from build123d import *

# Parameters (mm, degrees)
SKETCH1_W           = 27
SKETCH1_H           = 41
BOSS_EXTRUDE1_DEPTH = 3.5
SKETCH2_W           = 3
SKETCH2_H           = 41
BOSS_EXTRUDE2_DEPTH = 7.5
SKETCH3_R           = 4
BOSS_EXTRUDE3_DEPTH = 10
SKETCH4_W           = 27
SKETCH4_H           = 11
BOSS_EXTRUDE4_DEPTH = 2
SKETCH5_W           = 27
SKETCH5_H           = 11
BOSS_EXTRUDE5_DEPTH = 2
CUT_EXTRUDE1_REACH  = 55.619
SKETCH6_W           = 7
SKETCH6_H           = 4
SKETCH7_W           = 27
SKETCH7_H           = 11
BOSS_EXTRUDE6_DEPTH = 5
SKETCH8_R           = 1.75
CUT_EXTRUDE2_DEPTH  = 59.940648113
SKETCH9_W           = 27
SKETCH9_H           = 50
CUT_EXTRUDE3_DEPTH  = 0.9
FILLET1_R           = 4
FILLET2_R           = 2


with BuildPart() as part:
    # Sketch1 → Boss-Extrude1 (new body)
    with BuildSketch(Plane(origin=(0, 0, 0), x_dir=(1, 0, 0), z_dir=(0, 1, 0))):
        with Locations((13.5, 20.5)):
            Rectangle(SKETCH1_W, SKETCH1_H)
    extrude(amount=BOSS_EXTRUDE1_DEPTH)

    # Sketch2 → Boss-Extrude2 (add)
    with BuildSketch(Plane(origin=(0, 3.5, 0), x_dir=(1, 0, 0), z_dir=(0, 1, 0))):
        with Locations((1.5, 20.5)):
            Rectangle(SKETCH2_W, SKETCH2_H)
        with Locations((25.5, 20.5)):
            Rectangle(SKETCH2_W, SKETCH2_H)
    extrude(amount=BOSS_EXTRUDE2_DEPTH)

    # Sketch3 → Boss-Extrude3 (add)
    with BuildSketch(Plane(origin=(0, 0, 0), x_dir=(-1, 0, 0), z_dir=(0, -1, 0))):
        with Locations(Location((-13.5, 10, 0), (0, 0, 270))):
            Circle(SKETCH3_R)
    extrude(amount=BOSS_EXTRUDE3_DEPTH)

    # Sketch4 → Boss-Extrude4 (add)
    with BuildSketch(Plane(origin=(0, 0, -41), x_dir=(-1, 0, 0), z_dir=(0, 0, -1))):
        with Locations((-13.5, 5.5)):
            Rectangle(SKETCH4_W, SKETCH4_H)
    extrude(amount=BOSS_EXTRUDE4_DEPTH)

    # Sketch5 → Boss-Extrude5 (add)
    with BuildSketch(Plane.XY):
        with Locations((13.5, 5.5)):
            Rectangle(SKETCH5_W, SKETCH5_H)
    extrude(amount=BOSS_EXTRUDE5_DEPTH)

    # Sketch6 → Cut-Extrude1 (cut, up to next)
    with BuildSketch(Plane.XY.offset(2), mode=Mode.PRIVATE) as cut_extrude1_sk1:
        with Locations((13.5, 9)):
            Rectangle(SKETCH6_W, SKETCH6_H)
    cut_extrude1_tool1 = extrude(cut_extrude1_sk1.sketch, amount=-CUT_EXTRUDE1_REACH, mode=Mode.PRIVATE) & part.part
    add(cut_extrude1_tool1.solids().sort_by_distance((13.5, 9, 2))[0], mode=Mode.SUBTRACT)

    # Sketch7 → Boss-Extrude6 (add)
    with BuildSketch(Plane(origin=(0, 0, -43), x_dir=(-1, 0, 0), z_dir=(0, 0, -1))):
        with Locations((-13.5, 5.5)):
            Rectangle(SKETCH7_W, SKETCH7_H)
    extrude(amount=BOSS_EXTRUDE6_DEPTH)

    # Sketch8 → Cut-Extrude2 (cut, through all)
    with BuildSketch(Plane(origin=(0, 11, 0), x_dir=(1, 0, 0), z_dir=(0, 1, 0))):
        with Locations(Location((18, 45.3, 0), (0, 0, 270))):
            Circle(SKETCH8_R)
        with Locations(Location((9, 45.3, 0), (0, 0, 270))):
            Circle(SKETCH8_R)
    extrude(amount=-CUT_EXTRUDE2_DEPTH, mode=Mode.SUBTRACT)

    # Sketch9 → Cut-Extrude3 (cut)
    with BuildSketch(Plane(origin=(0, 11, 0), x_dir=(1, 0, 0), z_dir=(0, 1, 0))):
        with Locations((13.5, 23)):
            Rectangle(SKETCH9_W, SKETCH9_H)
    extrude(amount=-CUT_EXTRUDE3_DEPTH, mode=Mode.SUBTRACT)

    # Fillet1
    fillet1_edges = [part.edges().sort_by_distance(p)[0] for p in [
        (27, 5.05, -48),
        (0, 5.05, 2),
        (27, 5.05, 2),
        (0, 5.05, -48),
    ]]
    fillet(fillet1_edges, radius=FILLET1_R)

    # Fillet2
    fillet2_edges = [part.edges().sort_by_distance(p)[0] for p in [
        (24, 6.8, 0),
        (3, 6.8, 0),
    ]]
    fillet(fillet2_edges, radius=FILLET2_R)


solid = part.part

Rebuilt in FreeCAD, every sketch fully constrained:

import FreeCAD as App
import Part
import Sketcher

V = App.Vector


def edges_at(feature, points):
    """Names of the edges that pass closest to the given points."""
    edges = feature.Shape.Edges
    near = lambda p: min(range(len(edges)), key=lambda i: edges[i].distToShape(Part.Vertex(*p))[0])
    return sorted({f"Edge{near(p) + 1}" for p in points})


def add_polygon(sketch, points):
    """Adds a closed chain of lines whose ends are joined by coincident constraints."""
    first, n = sketch.GeometryCount, len(points)
    for a, b in zip(points, points[1:] + points[:1]):
        sketch.addGeometry(Part.LineSegment(App.Vector(*a, 0), App.Vector(*b, 0)), False)
    for i in range(n):
        sketch.addConstraint(Sketcher.Constraint("Coincident", first + i, 2, first + (i + 1) % n, 1))

doc = App.newDocument("Part")
body = doc.addObject("PartDesign::Body", "Body")

sketch1 = body.newObject("Sketcher::SketchObject", "Sketch")
sketch1.AttachmentSupport = (doc.getObject("XZ_Plane"), [""])
sketch1.MapMode = "FlatFace"
add_polygon(sketch1, [(0, -41), (0, 0), (27, 0), (27, -41)])
sketch1.addConstraint([
    Sketcher.Constraint("Vertical", 0),
    Sketcher.Constraint("Horizontal", 1),
    Sketcher.Constraint("Vertical", 2),
    Sketcher.Constraint("Horizontal", 3),
    Sketcher.Constraint("Coincident", 0, 2, -1, 1),
    Sketcher.Constraint("DistanceX", 1, 1, 1, 2, 27.0),
    Sketcher.Constraint("DistanceY", 0, 1, 0, 2, 41.0),
])
pad1 = body.newObject("PartDesign::Pad", "Pad")
pad1.Profile = sketch1
pad1.Length = 3.5
pad1.Reversed = True

sketch2 = body.newObject("Sketcher::SketchObject", "Sketch001")
sketch2.AttachmentSupport = (doc.getObject("XZ_Plane"), [""])
sketch2.MapMode = "FlatFace"
sketch2.AttachmentOffset = App.Placement(V(0, 0, -3.5), App.Rotation())
add_polygon(sketch2, [(0, -41), (0, 0), (3, 0), (3, -41)])
add_polygon(sketch2, [(24, -41), (24, 0), (27, 0), (27, -41)])
sketch2.addConstraint([
    Sketcher.Constraint("Vertical", 0),
    Sketcher.Constraint("Horizontal", 1),
    Sketcher.Constraint("Vertical", 2),
    Sketcher.Constraint("Horizontal", 3),
    Sketcher.Constraint("Vertical", 4),
    Sketcher.Constraint("Horizontal", 5),
    Sketcher.Constraint("Vertical", 6),
    Sketcher.Constraint("Horizontal", 7),
    Sketcher.Constraint("Coincident", 0, 2, -1, 1),
    Sketcher.Constraint("PointOnObject", 4, 2, -1),
    Sketcher.Constraint("Horizontal", 3, 2, 6, 2),
    Sketcher.Constraint("Equal", 3, 5),
    Sketcher.Constraint("DistanceX", 1, 1, 1, 2, 3.0),
    Sketcher.Constraint("DistanceY", 0, 1, 0, 2, 41.0),
    Sketcher.Constraint("DistanceX", -1, 1, 4, 2, 24.0),
])
pad2 = body.newObject("PartDesign::Pad", "Pad001")
pad2.Profile = sketch2
pad2.Length = 7.5
pad2.Reversed = True

sketch3 = body.newObject("Sketcher::SketchObject", "Sketch002")
sketch3.AttachmentSupport = (doc.getObject("XZ_Plane"), [""])
sketch3.MapMode = "FlatFace"
sketch3.addGeometry(Part.Circle(V(13.5, -10, 0), V(0, 0, 1), 4), False)
sketch3.addConstraint([
    Sketcher.Constraint("Diameter", 0, 8.0),
    Sketcher.Constraint("DistanceY", 0, 3, -1, 1, 10.0),
    Sketcher.Constraint("DistanceX", -1, 1, 0, 3, 13.5),
])
pad3 = body.newObject("PartDesign::Pad", "Pad002")
pad3.Profile = sketch3
pad3.Length = 10

sketch4 = body.newObject("Sketcher::SketchObject", "Sketch003")
sketch4.AttachmentSupport = (doc.getObject("XY_Plane"), [""])
sketch4.MapMode = "FlatFace"
sketch4.AttachmentOffset = App.Placement(V(0, 0, -41), App.Rotation())
add_polygon(sketch4, [(27, 11), (27, 0), (0, 0), (0, 11)])
sketch4.addConstraint([
    Sketcher.Constraint("Vertical", 0),
    Sketcher.Constraint("Horizontal", 1),
    Sketcher.Constraint("Vertical", 2),
    Sketcher.Constraint("Horizontal", 3),
    Sketcher.Constraint("Coincident", 1, 2, -1, 1),
    Sketcher.Constraint("DistanceX", 1, 2, 1, 1, 27.0),
    Sketcher.Constraint("DistanceY", 0, 2, 0, 1, 11.0),
])
pad4 = body.newObject("PartDesign::Pad", "Pad003")
pad4.Profile = sketch4
pad4.Length = 2
pad4.Reversed = True

sketch5 = body.newObject("Sketcher::SketchObject", "Sketch004")
sketch5.AttachmentSupport = (doc.getObject("XY_Plane"), [""])
sketch5.MapMode = "FlatFace"
add_polygon(sketch5, [(0, 11), (0, 0), (27, 0), (27, 11)])
sketch5.addConstraint([
    Sketcher.Constraint("Vertical", 0),
    Sketcher.Constraint("Horizontal", 1),
    Sketcher.Constraint("Vertical", 2),
    Sketcher.Constraint("Horizontal", 3),
    Sketcher.Constraint("Coincident", 0, 2, -1, 1),
    Sketcher.Constraint("DistanceX", 1, 1, 1, 2, 27.0),
    Sketcher.Constraint("DistanceY", 0, 2, 0, 1, 11.0),
])
pad5 = body.newObject("PartDesign::Pad", "Pad004")
pad5.Profile = sketch5
pad5.Length = 2

sketch6 = body.newObject("Sketcher::SketchObject", "Sketch005")
sketch6.AttachmentSupport = (doc.getObject("XY_Plane"), [""])
sketch6.MapMode = "FlatFace"
sketch6.AttachmentOffset = App.Placement(V(0, 0, 2), App.Rotation())
add_polygon(sketch6, [(10, 11), (10, 7), (17, 7), (17, 11)])
sketch6.addConstraint([
    Sketcher.Constraint("Vertical", 0),
    Sketcher.Constraint("Horizontal", 1),
    Sketcher.Constraint("Vertical", 2),
    Sketcher.Constraint("Horizontal", 3),
    Sketcher.Constraint("DistanceX", 1, 1, 1, 2, 7.0),
    Sketcher.Constraint("DistanceY", 0, 2, 0, 1, 4.0),
    Sketcher.Constraint("DistanceX", -1, 1, 0, 2, 10.0),
    Sketcher.Constraint("DistanceY", -1, 1, 0, 2, 7.0),
])
pocket1 = body.newObject("PartDesign::Pocket", "Pocket")
pocket1.Profile = sketch6
pocket1.Type = "UpToFirst"

sketch7 = body.newObject("Sketcher::SketchObject", "Sketch006")
sketch7.AttachmentSupport = (doc.getObject("XY_Plane"), [""])
sketch7.MapMode = "FlatFace"
sketch7.AttachmentOffset = App.Placement(V(0, 0, -43), App.Rotation())
add_polygon(sketch7, [(27, 11), (27, 0), (0, 0), (0, 11)])
sketch7.addConstraint([
    Sketcher.Constraint("Vertical", 0),
    Sketcher.Constraint("Horizontal", 1),
    Sketcher.Constraint("Vertical", 2),
    Sketcher.Constraint("Horizontal", 3),
    Sketcher.Constraint("Coincident", 1, 2, -1, 1),
    Sketcher.Constraint("DistanceX", 1, 2, 1, 1, 27.0),
    Sketcher.Constraint("DistanceY", 0, 2, 0, 1, 11.0),
])
pad6 = body.newObject("PartDesign::Pad", "Pad005")
pad6.Profile = sketch7
pad6.Length = 5
pad6.Reversed = True

sketch8 = body.newObject("Sketcher::SketchObject", "Sketch007")
sketch8.AttachmentSupport = (doc.getObject("XZ_Plane"), [""])
sketch8.MapMode = "FlatFace"
sketch8.AttachmentOffset = App.Placement(V(0, 0, -11), App.Rotation())
sketch8.addGeometry([
    Part.Circle(V(18, -45.3, 0), V(0, 0, 1), 1.75),
    Part.Circle(V(9, -45.3, 0), V(0, 0, 1), 1.75),
], False)
sketch8.addConstraint([
    Sketcher.Constraint("Equal", 0, 1),
    Sketcher.Constraint("Horizontal", 0, 3, 1, 3),
    Sketcher.Constraint("Diameter", 0, 3.5),
    Sketcher.Constraint("DistanceX", -1, 1, 0, 3, 18.0),
    Sketcher.Constraint("DistanceX", -1, 1, 1, 3, 9.0),
    Sketcher.Constraint("DistanceY", 0, 3, -1, 1, 45.3),
])
pocket2 = body.newObject("PartDesign::Pocket", "Pocket001")
pocket2.Profile = sketch8
pocket2.Type = "ThroughAll"
pocket2.Reversed = True

sketch9 = body.newObject("Sketcher::SketchObject", "Sketch008")
sketch9.AttachmentSupport = (doc.getObject("XZ_Plane"), [""])
sketch9.MapMode = "FlatFace"
sketch9.AttachmentOffset = App.Placement(V(0, 0, -11), App.Rotation())
add_polygon(sketch9, [(0, -48), (0, 2), (27, 2), (27, -48)])
sketch9.addConstraint([
    Sketcher.Constraint("Vertical", 0),
    Sketcher.Constraint("Horizontal", 1),
    Sketcher.Constraint("Vertical", 2),
    Sketcher.Constraint("Horizontal", 3),
    Sketcher.Constraint("PointOnObject", 0, 2, -2),
    Sketcher.Constraint("DistanceX", 1, 1, 1, 2, 27.0),
    Sketcher.Constraint("DistanceY", 0, 1, 0, 2, 50.0),
    Sketcher.Constraint("DistanceY", -1, 1, 0, 2, 2.0),
])
pocket3 = body.newObject("PartDesign::Pocket", "Pocket002")
pocket3.Profile = sketch9
pocket3.Length = 0.9
pocket3.Reversed = True
doc.recompute()

fillet = body.newObject("PartDesign::Fillet", "Fillet")
fillet.Base = (pocket3, edges_at(pocket3, [
    (27, 5.05, -48),
    (0, 5.05, 2),
    (27, 5.05, 2),
    (0, 5.05, -48),
]))
fillet.Radius = 4
doc.recompute()

fillet2 = body.newObject("PartDesign::Fillet", "Fillet001")
fillet2.Base = (fillet, edges_at(fillet, [(24, 6.8, 0), (3, 6.8, 0)]))
fillet2.Radius = 2

doc.recompute()
